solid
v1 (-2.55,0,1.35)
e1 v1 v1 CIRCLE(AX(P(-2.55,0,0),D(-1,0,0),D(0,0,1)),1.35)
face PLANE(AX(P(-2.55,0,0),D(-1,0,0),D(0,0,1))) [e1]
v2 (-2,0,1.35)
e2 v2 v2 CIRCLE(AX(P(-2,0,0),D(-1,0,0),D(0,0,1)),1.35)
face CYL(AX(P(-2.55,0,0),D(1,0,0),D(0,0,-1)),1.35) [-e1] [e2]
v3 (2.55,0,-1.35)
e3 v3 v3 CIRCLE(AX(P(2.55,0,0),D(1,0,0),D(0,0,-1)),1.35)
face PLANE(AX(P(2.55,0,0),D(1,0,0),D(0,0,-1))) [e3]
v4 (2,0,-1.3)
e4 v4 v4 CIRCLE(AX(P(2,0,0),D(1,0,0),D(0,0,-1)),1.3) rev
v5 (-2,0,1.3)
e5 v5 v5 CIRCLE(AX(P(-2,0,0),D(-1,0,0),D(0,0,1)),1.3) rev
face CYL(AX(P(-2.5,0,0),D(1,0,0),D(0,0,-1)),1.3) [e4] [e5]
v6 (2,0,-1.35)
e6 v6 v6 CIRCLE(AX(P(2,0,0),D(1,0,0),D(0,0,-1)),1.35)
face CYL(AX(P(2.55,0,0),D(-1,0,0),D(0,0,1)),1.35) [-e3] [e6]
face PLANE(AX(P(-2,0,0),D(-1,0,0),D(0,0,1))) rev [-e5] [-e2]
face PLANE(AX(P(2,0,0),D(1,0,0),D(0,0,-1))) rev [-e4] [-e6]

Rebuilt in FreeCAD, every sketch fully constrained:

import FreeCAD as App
import Part
import Sketcher

V = App.Vector

doc = App.newDocument("Part")
params = doc.addObject("Spreadsheet::Sheet", "Params")
for row, (alias, value) in enumerate([
    ("sketch1_diameter", "2.6 mm"),
    ("pad1_length", "2.5 mm"),
    ("pad1_length2", "2.5 mm"),
    ("sketch2_diameter", "2.7 mm"),
    ("pad2_length", "0.05 mm"),
    ("pad2_length2", "0.5 mm"),
    ("sketch3_diameter", "2.7 mm"),
    ("pad3_length", "0.05 mm"),
    ("pad3_length2", "0.5 mm"),
], start=1):
    params.set(f"A{row}", alias)
    params.set(f"B{row}", "=" + value)
    params.setAlias(f"B{row}", alias)

body = doc.addObject("PartDesign::Body", "Body")

sketch1 = doc.addObject("Sketcher::SketchObject", "Sketch")
body.addObject(sketch1)
sketch1.AttachmentSupport = (doc.YZ_Plane, [""])
sketch1.MapMode = "FlatFace"
sketch1.addGeometry(Part.Circle(V(0, 0, 0), V(0, 0, 1), 1.3), False)
sketch1.addConstraint(Sketcher.Constraint("Coincident", 0, 3, -1, 1))
sketch1.addConstraint(Sketcher.Constraint("Diameter", 0, 2.6))
sketch1.setExpression("Constraints[1]", "Params.sketch1_diameter")
pad1 = doc.addObject("PartDesign::Pad", "Pad")
body.addObject(pad1)
pad1.Profile = sketch1
pad1.Type = "TwoLengths"
pad1.setExpression("Length", "Params.pad1_length")
pad1.setExpression("Length2", "Params.pad1_length2")

sketch2 = doc.addObject("Sketcher::SketchObject", "Sketch001")
body.addObject(sketch2)
sketch2.AttachmentSupport = (doc.YZ_Plane, [""])
sketch2.MapMode = "FlatFace"
sketch2.AttachmentOffset = App.Placement(V(0, 0, 2.5), App.Rotation())
sketch2.addGeometry(Part.Circle(V(0, 0, 0), V(0, 0, 1), 1.35), False)
sketch2.addConstraint(Sketcher.Constraint("Coincident", 0, 3, -1, 1))
sketch2.addConstraint(Sketcher.Constraint("Diameter", 0, 2.7))
sketch2.setExpression("Constraints[1]", "Params.sketch2_diameter")
pad2 = doc.addObject("PartDesign::Pad", "Pad001")
body.addObject(pad2)
pad2.Profile = sketch2
pad2.Type = "TwoLengths"
pad2.setExpression("Length", "Params.pad2_length")
pad2.setExpression("Length2", "Params.pad2_length2")

sketch3 = doc.addObject("Sketcher::SketchObject", "Sketch002")
body.addObject(sketch3)
sketch3.AttachmentSupport = (doc.YZ_Plane, [""])
sketch3.MapMode = "FlatFace"
sketch3.AttachmentOffset = App.Placement(V(0, 0, -2.5), App.Rotation())
sketch3.addGeometry(Part.Circle(V(0, 0, 0), V(0, 0, 1), 1.35), False)
sketch3.addConstraint(Sketcher.Constraint("Coincident", 0, 3, -1, 1))
sketch3.addConstraint(Sketcher.Constraint("Diameter", 0, 2.7))
sketch3.setExpression("Constraints[1]", "Params.sketch3_diameter")
pad3 = doc.addObject("PartDesign::Pad", "Pad002")
body.addObject(pad3)
pad3.Profile = sketch3
pad3.Type = "TwoLengths"
pad3.setExpression("Length", "Params.pad3_length")
pad3.setExpression("Length2", "Params.pad3_length2")
pad3.Reversed = True

doc.recompute()
